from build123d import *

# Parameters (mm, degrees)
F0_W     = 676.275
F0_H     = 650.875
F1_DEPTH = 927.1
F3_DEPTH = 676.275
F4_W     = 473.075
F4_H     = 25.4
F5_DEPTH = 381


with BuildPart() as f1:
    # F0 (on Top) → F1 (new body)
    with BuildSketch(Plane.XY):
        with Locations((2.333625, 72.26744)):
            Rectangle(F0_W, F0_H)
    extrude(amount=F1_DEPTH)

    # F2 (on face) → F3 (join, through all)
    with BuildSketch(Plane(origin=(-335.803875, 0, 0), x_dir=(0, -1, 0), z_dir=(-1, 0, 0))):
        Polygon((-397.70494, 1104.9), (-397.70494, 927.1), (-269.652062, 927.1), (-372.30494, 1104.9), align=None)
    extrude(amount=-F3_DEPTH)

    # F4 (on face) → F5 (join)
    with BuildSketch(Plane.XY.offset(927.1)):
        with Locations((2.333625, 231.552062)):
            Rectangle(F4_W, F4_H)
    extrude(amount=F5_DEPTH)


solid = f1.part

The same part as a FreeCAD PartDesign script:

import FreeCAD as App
import Part
import Sketcher

V = App.Vector
Q = App.Units.Quantity


def add_polygon(sketch, points):
    """Adds a closed chain of lines whose ends are joined by coincident constraints."""
    first, n = sketch.GeometryCount, len(points)
    for a, b in zip(points, points[1:] + points[:1]):
        sketch.addGeometry(Part.LineSegment(App.Vector(*a, 0), App.Vector(*b, 0)), False)
    for i in range(n):
        sketch.addConstraint(Sketcher.Constraint("Coincident", first + i, 2, first + (i + 1) % n, 1))

doc = App.newDocument("Part")
body = doc.addObject("PartDesign::Body", "Body")

sketch1 = body.newObject("Sketcher::SketchObject", "Sketch")
sketch1.AttachmentSupport = (doc.getObject("XY_Plane"), [""])
sketch1.MapMode = "FlatFace"
add_polygon(sketch1, [(-336, 398), (-336, -253), (340, -253), (340, 398)])
sketch1.addConstraint([
    Sketcher.Constraint("Vertical", 0),
    Sketcher.Constraint("Horizontal", 1),
    Sketcher.Constraint("Vertical", 2),
    Sketcher.Constraint("Horizontal", 3),
    Sketcher.Constraint("DistanceX", 1, 1, 1, 2, Q("26.625 in")),
    Sketcher.Constraint("DistanceY", 0, 2, 0, 1, Q("25.625 in")),
    Sketcher.Constraint("DistanceY", 0, 2, -1, 1, Q("253.17006 mm")),
    Sketcher.Constraint("DistanceX", 0, 2, -1, 1, Q("335.803875 mm")),
])
pad1 = body.newObject("PartDesign::Pad", "Pad")
pad1.Profile = sketch1
pad1.Length = Q("36.5 in")

sketch2 = body.newObject("Sketcher::SketchObject", "Sketch001")
sketch2.AttachmentSupport = (doc.getObject("YZ_Plane"), [""])
sketch2.MapMode = "FlatFace"
sketch2.AttachmentOffset = App.Placement(V(0, 0, -335.803875), App.Rotation())
add_polygon(sketch2, [(398, 1105), (398, 927), (270, 927), (372, 1105)])
sketch2.addConstraint([
    Sketcher.Constraint("Vertical", 0),
    Sketcher.Constraint("Horizontal", 1),
    Sketcher.Constraint("Horizontal", 3),
    Sketcher.Constraint("DistanceX", 3, 1, 3, 2, Q("1 in")),
    Sketcher.Constraint("DistanceY", 0, 2, 0, 1, Q("7 in")),
    Sketcher.Constraint("Angle", 2, Q("60 deg")),
    Sketcher.Constraint("DistanceY", -1, 1, 0, 2, Q("36.5 in")),
    Sketcher.Constraint("DistanceX", -1, 1, 0, 2, Q("397.70494 mm")),
])
pad2 = body.newObject("PartDesign::Pad", "Pad001")
pad2.Profile = sketch2
pad2.Length = Q("26.625 in")

sketch3 = body.newObject("Sketcher::SketchObject", "Sketch002")
sketch3.AttachmentSupport = (doc.getObject("XY_Plane"), [""])
sketch3.MapMode = "FlatFace"
sketch3.AttachmentOffset = App.Placement(V(0, 0, 36.5 * 25.4), App.Rotation())
add_polygon(sketch3, [(-234, 244), (-234, 219), (239, 219), (239, 244)])
sketch3.addConstraint([
    Sketcher.Constraint("Vertical", 0),
    Sketcher.Constraint("Horizontal", 1),
    Sketcher.Constraint("Vertical", 2),
    Sketcher.Constraint("Horizontal", 3),
    Sketcher.Constraint("DistanceY", 0, 2, 0, 1, Q("1 in")),
    Sketcher.Constraint("DistanceX", 1, 1, 1, 2, Q("18.625 in")),
    Sketcher.Constraint("DistanceY", -1, 1, 0, 2, Q("218.852062 mm")),
    Sketcher.Constraint("DistanceX", 0, 2, -1, 1, Q("234.203875 mm")),
])
pad3 = body.newObject("PartDesign::Pad", "Pad002")
pad3.Profile = sketch3
pad3.Length = Q("15 in")

doc.recompute()
